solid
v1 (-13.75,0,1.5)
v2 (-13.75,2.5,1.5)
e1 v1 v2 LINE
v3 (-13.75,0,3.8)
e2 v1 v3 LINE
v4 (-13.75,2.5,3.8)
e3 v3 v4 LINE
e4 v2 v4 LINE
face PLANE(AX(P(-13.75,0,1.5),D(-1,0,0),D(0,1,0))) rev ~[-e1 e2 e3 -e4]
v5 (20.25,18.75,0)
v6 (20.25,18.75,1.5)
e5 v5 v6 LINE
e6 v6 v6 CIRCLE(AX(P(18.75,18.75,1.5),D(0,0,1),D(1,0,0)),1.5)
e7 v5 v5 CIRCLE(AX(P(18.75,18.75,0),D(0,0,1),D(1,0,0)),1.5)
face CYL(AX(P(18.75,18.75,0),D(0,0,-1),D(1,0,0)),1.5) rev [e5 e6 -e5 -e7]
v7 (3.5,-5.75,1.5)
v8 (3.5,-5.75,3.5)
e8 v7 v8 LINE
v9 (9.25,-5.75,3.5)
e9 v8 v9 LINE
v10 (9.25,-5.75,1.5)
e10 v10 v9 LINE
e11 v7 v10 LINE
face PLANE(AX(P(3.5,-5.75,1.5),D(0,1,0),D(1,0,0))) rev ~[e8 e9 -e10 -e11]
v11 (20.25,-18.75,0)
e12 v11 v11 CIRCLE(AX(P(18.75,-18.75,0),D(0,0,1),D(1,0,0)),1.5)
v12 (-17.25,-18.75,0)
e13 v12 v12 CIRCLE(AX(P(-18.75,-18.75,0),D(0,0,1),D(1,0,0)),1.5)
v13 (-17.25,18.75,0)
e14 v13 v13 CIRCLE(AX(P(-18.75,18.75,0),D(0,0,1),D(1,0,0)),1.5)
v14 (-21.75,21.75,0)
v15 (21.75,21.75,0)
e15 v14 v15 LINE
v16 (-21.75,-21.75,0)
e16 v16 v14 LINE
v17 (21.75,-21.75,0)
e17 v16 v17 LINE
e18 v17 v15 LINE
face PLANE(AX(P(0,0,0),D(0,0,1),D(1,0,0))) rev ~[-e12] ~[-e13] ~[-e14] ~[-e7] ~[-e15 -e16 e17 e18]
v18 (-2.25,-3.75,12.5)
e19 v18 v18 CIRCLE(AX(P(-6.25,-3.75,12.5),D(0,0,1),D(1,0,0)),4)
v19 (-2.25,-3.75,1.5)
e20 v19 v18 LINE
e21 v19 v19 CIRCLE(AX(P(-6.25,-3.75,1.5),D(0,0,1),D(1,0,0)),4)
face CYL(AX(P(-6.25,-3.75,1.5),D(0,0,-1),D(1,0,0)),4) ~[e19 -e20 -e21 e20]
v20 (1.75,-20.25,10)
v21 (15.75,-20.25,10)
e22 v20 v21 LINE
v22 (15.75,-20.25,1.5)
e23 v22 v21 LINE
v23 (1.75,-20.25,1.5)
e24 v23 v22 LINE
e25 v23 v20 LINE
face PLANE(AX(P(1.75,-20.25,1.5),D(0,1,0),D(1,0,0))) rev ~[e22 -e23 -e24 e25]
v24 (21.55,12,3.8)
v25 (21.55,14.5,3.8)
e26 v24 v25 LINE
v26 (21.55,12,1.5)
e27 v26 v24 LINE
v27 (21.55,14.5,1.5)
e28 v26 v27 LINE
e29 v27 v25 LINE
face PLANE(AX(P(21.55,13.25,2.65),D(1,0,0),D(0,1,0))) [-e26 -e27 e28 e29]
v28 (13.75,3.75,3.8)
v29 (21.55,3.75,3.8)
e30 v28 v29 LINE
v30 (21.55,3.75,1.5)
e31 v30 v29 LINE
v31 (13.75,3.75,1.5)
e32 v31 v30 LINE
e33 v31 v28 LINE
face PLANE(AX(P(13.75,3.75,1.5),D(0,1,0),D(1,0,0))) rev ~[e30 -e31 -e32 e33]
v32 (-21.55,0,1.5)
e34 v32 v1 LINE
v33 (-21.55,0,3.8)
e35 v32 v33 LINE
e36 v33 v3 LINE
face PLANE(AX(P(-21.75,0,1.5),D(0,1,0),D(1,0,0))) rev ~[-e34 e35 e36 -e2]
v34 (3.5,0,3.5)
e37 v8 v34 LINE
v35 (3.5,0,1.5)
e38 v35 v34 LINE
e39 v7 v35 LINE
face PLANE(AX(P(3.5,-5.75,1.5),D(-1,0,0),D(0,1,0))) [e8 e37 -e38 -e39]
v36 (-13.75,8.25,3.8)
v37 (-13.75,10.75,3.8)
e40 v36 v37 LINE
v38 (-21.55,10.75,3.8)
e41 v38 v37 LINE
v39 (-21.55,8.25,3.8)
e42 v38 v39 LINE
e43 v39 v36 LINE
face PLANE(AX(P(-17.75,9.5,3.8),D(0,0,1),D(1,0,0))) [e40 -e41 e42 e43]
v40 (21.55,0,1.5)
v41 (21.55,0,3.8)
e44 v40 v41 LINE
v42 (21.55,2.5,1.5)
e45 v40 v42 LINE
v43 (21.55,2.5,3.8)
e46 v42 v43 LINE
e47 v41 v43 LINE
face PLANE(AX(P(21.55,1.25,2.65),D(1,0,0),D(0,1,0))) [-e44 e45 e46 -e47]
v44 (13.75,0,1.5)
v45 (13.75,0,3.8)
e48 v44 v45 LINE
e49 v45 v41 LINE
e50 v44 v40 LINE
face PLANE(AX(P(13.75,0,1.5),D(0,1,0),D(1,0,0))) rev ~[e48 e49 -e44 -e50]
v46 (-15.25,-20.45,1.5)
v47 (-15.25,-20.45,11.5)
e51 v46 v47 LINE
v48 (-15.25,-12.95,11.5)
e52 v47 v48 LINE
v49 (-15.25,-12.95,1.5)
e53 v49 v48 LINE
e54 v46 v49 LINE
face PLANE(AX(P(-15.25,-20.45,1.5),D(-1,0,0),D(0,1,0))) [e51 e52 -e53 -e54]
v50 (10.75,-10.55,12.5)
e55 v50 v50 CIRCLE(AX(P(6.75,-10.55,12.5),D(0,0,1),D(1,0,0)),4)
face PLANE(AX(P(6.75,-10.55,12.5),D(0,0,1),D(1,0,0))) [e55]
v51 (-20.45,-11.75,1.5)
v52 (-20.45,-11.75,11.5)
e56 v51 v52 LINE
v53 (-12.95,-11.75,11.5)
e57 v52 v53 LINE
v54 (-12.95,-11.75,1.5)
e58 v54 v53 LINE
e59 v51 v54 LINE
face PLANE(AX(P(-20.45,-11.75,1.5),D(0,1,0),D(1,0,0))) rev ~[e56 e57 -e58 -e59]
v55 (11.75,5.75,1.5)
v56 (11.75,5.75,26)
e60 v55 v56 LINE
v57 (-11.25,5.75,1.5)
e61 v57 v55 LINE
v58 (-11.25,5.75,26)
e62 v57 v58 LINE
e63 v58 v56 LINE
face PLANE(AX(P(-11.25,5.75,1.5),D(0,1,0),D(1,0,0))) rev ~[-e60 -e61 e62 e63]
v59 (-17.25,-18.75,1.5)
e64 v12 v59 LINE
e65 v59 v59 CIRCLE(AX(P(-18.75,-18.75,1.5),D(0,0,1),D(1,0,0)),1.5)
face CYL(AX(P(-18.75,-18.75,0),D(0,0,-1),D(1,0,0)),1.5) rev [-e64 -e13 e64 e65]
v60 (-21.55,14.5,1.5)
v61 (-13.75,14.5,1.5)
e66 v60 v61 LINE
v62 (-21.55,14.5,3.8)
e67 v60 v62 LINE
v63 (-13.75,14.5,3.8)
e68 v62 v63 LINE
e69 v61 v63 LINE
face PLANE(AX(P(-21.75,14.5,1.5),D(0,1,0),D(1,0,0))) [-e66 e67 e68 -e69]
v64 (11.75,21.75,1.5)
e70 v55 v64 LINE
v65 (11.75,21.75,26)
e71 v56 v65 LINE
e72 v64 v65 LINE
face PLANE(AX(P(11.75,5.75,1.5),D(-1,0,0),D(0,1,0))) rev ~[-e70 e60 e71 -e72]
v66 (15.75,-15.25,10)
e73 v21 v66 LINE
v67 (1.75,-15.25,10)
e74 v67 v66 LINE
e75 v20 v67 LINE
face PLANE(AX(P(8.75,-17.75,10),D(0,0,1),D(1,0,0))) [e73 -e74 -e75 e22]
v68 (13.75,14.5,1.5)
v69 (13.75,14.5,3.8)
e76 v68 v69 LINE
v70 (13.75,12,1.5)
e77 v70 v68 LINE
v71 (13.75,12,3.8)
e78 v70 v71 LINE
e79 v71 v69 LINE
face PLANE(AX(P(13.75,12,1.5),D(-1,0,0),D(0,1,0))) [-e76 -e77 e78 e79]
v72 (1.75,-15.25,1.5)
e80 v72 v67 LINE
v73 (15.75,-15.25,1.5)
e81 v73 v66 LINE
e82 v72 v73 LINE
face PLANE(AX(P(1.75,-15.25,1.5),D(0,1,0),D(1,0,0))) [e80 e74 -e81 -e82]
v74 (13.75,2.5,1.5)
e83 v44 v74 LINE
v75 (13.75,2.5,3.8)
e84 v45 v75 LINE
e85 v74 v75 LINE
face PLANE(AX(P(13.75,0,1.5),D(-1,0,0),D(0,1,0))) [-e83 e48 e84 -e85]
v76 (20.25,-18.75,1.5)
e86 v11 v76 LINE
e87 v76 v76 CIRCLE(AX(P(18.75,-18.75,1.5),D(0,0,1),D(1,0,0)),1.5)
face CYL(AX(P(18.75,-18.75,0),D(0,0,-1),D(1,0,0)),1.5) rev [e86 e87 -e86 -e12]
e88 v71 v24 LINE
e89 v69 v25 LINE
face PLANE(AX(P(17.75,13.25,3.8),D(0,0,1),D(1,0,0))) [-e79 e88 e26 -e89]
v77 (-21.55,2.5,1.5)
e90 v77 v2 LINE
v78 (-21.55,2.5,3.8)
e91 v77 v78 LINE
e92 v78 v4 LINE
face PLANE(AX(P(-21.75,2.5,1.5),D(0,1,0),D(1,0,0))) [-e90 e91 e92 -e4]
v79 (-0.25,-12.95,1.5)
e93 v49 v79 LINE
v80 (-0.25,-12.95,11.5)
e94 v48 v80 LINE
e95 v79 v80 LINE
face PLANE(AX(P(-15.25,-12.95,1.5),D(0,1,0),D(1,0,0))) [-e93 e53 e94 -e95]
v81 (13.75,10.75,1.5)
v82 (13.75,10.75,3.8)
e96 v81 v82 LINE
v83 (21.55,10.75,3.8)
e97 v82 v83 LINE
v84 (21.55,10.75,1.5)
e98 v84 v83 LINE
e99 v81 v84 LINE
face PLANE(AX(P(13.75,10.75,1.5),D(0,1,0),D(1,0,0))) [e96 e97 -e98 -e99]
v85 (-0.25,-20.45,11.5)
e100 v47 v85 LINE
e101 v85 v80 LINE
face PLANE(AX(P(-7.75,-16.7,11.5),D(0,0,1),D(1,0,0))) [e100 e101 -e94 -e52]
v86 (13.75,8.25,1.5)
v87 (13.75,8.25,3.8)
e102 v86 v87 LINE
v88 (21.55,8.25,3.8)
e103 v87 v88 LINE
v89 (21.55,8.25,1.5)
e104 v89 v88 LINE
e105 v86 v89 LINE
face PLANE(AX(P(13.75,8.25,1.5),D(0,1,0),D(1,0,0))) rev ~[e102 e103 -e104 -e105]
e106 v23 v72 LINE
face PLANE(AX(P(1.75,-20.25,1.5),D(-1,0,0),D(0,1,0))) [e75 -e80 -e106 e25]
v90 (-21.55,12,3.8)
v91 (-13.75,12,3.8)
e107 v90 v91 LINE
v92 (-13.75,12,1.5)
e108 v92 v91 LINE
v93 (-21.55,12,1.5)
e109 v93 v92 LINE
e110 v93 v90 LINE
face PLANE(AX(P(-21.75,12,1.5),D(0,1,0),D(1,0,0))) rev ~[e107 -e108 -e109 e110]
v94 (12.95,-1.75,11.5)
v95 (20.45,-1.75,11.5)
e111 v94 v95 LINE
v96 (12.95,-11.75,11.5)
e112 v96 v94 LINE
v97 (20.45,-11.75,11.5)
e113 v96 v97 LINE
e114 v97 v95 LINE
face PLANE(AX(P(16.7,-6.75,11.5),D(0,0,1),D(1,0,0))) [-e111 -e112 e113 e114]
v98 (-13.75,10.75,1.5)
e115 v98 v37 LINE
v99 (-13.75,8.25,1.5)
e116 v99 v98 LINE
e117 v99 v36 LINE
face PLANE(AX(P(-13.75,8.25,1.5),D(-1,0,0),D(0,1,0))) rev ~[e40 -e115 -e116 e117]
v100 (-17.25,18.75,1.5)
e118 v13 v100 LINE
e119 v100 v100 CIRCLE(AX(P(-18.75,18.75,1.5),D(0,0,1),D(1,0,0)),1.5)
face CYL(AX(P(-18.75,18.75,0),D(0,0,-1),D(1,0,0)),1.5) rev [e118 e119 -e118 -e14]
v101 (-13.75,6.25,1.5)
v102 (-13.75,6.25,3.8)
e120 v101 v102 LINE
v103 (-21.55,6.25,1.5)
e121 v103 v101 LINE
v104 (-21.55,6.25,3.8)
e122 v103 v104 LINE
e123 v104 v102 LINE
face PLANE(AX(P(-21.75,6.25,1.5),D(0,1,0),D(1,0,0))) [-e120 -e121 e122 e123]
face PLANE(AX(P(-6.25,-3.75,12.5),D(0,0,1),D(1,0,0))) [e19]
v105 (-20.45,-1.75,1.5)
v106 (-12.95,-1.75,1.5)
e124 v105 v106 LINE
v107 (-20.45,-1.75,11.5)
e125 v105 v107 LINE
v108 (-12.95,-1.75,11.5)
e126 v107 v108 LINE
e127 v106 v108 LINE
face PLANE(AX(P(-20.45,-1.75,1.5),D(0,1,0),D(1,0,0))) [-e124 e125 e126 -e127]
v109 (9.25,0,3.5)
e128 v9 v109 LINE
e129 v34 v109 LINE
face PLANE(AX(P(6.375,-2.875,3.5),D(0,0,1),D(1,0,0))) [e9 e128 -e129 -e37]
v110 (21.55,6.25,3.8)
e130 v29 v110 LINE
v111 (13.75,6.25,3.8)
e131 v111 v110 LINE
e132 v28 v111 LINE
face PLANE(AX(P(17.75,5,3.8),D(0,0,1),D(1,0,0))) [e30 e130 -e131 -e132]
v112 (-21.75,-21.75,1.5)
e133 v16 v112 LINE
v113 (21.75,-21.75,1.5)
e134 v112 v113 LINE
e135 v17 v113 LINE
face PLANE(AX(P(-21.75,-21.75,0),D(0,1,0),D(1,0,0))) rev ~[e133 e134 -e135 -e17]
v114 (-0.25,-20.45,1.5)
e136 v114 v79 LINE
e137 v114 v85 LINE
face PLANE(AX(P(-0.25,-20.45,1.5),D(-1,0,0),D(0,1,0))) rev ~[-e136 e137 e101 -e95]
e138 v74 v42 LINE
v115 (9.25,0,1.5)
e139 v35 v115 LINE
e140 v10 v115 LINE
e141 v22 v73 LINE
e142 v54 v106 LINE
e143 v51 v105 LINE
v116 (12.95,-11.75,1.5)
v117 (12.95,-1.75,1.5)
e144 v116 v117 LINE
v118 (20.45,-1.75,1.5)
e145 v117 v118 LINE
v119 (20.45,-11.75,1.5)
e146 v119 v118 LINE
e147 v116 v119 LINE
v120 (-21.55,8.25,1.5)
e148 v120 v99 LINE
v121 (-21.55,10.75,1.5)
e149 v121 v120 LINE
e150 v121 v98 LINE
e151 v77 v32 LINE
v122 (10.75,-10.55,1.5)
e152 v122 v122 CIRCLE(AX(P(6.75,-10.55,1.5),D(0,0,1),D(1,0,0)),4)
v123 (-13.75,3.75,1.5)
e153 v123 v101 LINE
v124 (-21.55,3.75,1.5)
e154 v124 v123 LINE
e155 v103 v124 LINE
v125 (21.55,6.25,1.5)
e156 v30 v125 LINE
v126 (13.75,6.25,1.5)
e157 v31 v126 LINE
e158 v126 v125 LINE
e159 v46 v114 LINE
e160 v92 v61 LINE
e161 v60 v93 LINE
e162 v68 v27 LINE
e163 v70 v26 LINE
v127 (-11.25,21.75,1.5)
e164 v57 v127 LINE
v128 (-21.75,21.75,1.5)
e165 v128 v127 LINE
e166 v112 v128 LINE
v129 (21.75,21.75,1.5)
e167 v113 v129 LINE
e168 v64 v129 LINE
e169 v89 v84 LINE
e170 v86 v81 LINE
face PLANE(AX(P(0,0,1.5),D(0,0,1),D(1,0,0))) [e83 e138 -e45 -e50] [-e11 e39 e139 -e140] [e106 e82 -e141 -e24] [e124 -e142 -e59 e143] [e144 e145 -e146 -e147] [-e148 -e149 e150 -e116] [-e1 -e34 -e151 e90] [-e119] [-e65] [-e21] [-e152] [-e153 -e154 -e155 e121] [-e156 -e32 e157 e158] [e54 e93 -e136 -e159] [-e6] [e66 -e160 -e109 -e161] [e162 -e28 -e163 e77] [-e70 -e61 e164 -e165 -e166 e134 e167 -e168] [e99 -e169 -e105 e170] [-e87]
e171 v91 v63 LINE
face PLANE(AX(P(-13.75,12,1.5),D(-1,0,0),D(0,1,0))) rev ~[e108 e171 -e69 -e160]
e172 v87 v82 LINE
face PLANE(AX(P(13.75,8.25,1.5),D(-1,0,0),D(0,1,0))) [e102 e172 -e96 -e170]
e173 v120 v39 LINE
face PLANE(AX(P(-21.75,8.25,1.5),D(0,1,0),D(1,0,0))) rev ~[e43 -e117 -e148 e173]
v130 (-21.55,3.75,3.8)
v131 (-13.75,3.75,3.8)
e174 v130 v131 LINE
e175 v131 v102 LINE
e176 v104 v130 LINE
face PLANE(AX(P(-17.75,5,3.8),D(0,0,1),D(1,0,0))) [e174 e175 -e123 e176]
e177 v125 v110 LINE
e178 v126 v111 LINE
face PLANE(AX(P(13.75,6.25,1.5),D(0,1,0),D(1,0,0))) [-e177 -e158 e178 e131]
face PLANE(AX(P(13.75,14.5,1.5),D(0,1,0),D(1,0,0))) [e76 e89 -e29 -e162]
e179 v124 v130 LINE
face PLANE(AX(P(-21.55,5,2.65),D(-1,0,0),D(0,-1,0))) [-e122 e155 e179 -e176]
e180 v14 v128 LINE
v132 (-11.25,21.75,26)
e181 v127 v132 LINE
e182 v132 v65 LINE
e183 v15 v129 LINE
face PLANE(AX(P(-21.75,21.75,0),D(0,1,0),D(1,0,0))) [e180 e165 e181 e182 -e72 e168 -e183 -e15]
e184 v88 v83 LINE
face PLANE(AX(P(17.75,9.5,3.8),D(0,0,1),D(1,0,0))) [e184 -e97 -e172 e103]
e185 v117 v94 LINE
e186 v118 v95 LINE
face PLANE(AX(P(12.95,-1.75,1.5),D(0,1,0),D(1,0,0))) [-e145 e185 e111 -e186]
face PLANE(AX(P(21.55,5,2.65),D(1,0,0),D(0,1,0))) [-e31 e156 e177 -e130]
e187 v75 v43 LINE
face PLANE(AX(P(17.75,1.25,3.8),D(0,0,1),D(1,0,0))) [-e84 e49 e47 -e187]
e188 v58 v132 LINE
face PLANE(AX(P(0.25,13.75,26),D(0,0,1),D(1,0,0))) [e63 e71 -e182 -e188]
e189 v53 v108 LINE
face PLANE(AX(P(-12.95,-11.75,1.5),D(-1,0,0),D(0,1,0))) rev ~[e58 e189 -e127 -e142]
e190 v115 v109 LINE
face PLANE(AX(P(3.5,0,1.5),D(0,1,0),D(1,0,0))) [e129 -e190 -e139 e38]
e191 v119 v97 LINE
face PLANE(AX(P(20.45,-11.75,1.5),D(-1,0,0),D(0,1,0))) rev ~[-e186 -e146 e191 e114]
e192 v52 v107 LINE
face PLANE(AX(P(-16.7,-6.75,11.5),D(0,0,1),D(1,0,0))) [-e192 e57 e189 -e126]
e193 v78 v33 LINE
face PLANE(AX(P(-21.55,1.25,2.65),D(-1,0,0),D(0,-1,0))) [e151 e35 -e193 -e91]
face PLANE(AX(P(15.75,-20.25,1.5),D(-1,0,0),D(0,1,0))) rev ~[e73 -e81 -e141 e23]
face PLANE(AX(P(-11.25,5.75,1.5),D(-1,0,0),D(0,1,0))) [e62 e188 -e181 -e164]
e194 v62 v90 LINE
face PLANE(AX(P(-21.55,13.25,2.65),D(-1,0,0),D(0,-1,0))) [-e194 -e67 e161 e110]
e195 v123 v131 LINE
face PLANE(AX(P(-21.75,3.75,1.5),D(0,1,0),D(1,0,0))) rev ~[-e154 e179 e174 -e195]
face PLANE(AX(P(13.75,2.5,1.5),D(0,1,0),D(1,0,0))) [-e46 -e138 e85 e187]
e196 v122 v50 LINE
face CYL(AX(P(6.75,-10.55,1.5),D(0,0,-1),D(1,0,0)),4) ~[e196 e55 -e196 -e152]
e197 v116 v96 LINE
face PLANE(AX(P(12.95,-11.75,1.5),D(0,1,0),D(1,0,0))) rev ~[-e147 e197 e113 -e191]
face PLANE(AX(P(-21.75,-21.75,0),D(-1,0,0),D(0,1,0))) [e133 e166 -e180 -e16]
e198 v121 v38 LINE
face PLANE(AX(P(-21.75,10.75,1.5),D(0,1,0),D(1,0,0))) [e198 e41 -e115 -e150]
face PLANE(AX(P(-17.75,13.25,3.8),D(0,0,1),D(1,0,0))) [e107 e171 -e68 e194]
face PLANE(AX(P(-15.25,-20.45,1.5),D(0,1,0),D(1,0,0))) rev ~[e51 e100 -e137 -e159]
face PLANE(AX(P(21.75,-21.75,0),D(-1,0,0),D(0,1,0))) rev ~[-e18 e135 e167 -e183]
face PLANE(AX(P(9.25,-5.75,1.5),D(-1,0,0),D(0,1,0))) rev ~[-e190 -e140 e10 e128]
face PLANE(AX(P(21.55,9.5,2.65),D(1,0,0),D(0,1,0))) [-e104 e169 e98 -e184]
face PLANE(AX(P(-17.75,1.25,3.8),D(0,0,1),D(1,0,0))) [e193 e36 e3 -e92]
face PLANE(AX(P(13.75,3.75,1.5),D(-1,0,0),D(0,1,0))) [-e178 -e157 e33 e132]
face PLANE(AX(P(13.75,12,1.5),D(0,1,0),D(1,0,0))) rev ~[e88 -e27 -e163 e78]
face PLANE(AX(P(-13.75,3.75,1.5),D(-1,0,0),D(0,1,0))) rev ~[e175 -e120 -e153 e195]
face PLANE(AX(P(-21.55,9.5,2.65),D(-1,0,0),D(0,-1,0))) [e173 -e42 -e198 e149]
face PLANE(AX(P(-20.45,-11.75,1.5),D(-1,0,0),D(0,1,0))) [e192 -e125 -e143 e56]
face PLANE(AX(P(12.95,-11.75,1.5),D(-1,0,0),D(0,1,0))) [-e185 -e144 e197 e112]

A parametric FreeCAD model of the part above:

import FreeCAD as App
import Part
import Sketcher

V = App.Vector

doc = App.newDocument("Part")
body = doc.addObject("PartDesign::Body", "Body")

# Sketch on XY plane
sketch1 = doc.addObject("Sketcher::SketchObject", "Sketch")
body.addObject(sketch1)
sketch1.AttachmentSupport = (doc.XY_Plane, [""])
sketch1.MapMode = "FlatFace"
sketch1.addGeometry([
    Part.LineSegment(V(-21.8, 21.8, 0), V(-21.8, -21.8, 0)),  # 0
    Part.LineSegment(V(-21.8, -21.8, 0), V(21.8, -21.8, 0)),  # 1
    Part.LineSegment(V(21.8, -21.8, 0), V(21.8, 21.8, 0)),  # 2
    Part.LineSegment(V(21.8, 21.8, 0), V(-21.8, 21.8, 0)),  # 3
    Part.Circle(V(-18.8, -18.8, 0), V(0, 0, 1), 1.5),  # 4
    Part.Circle(V(18.8, -18.8, 0), V(0, 0, 1), 1.5),  # 5
    Part.Circle(V(-18.8, 18.8, 0), V(0, 0, 1), 1.5),  # 6
    Part.Circle(V(18.8, 18.8, 0), V(0, 0, 1), 1.5),  # 7
], False)
sketch1.addConstraint([
    Sketcher.Constraint("Coincident", 0, 2, 1, 1),
    Sketcher.Constraint("Coincident", 1, 2, 2, 1),
    Sketcher.Constraint("Coincident", 2, 2, 3, 1),
    Sketcher.Constraint("Coincident", 3, 2, 0, 1),
    Sketcher.Constraint("Vertical", 0),
    Sketcher.Constraint("Horizontal", 1),
    Sketcher.Constraint("Vertical", 2),
    Sketcher.Constraint("Horizontal", 3),
    Sketcher.Constraint("Equal", 4, 5),
    Sketcher.Constraint("Equal", 5, 6),
    Sketcher.Constraint("Equal", 6, 7),
    Sketcher.Constraint("Symmetric", 5, 3, 6, 3, -1, 1),
    Sketcher.Constraint("Symmetric", 4, 3, 7, 3, -1, 1),
    Sketcher.Constraint("Symmetric", 0, 2, 2, 2, -1, 1),
    Sketcher.Constraint("Symmetric", 4, 3, 5, 3, -2),
    Sketcher.Constraint("Equal", 3, 0),
    Sketcher.Constraint("Diameter", 4, 3.0),
    Sketcher.Constraint("DistanceX", 1, 1, 1, 2, 43.5),
    Sketcher.Constraint("DistanceX", 0, 2, 4, 3, 3.0),
    Sketcher.Constraint("DistanceY", 0, 2, 4, 3, 3.0),
])
pad1 = doc.addObject("PartDesign::Pad", "Pad")
body.addObject(pad1)
pad1.Profile = sketch1
pad1.Length = 1.5

# Sketch on XY plane
sketch2 = doc.addObject("Sketcher::SketchObject", "Sketch001")
body.addObject(sketch2)
sketch2.AttachmentSupport = (doc.XY_Plane, [""])
sketch2.MapMode = "FlatFace"
sketch2.AttachmentOffset = App.Placement(V(0, 0, 1.5), App.Rotation())
sketch2.addGeometry([
    Part.LineSegment(V(-11, 22, 0), V(-11, 6, 0)),
    Part.LineSegment(V(-11, 6, 0), V(12, 6, 0)),
    Part.LineSegment(V(12, 6, 0), V(12, 22, 0)),
    Part.LineSegment(V(12, 22, 0), V(-11, 22, 0)),
], False)
sketch2.addConstraint([
    Sketcher.Constraint("Coincident", 0, 2, 1, 1),
    Sketcher.Constraint("Coincident", 1, 2, 2, 1),
    Sketcher.Constraint("Coincident", 2, 2, 3, 1),
    Sketcher.Constraint("Coincident", 3, 2, 0, 1),
    Sketcher.Constraint("Vertical", 0),
    Sketcher.Constraint("Horizontal", 1),
    Sketcher.Constraint("Vertical", 2),
    Sketcher.Constraint("Horizontal", 3),
    Sketcher.Constraint("DistanceX", 1, 1, 1, 2, 23.0),
    Sketcher.Constraint("DistanceY", 0, 2, 0, 1, 16.0),
    Sketcher.Constraint("DistanceX", 0, 2, -1, 1, 11.25),
    Sketcher.Constraint("DistanceY", -1, 1, 0, 2, 5.75),
])
pad2 = doc.addObject("PartDesign::Pad", "Pad001")
body.addObject(pad2)
pad2.Profile = sketch2
pad2.Length = 24.5

# Sketch on XY plane
sketch3 = doc.addObject("Sketcher::SketchObject", "Sketch002")
body.addObject(sketch3)
sketch3.AttachmentSupport = (doc.XY_Plane, [""])
sketch3.MapMode = "FlatFace"
sketch3.AttachmentOffset = App.Placement(V(0, 0, 1.5), App.Rotation())
sketch3.addGeometry([
    Part.LineSegment(V(-21.8, 14.5, 0), V(-21.8, 12, 0)),  # 0
    Part.LineSegment(V(-21.8, 12, 0), V(-13.8, 12, 0)),  # 1
    Part.LineSegment(V(-13.8, 12, 0), V(-13.8, 14.5, 0)),  # 2
    Part.LineSegment(V(-13.8, 14.5, 0), V(-21.8, 14.5, 0)),  # 3
    Part.LineSegment(V(-21.8, 10.8, 0), V(-21.8, 8.2, 0)),  # 4
    Part.LineSegment(V(-21.8, 8.2, 0), V(-13.8, 8.2, 0)),  # 5
    Part.LineSegment(V(-13.8, 8.2, 0), V(-13.8, 10.8, 0)),  # 6
    Part.LineSegment(V(-13.8, 10.8, 0), V(-21.8, 10.8, 0)),  # 7
    Part.LineSegment(V(-21.8, 6.2, 0), V(-21.8, 3.8, 0)),  # 8
    Part.LineSegment(V(-21.8, 3.8, 0), V(-13.8, 3.8, 0)),  # 9
    Part.LineSegment(V(-13.8, 3.8, 0), V(-13.8, 6.2, 0)),  # 10
    Part.LineSegment(V(-13.8, 6.2, 0), V(-21.8, 6.2, 0)),  # 11
    Part.LineSegment(V(13.8, 14.5, 0), V(13.8, 12, 0)),  # 12
    Part.LineSegment(V(13.8, 12, 0), V(21.8, 12, 0)),  # 13
    Part.LineSegment(V(21.8, 12, 0), V(21.8, 14.5, 0)),  # 14
    Part.LineSegment(V(21.8, 14.5, 0), V(13.8, 14.5, 0)),  # 15
    Part.LineSegment(V(13.8, 10.8, 0), V(13.8, 8.2, 0)),  # 16
    Part.LineSegment(V(13.8, 8.2, 0), V(21.8, 8.2, 0)),  # 17
    Part.LineSegment(V(21.8, 8.2, 0), V(21.8, 10.8, 0)),  # 18
    Part.LineSegment(V(21.8, 10.8, 0), V(13.8, 10.8, 0)),  # 19
    Part.LineSegment(V(13.8, 6.2, 0), V(13.8, 3.8, 0)),  # 20
    Part.LineSegment(V(13.8, 3.8, 0), V(21.8, 3.8, 0)),  # 21
    Part.LineSegment(V(21.8, 3.8, 0), V(21.8, 6.2, 0)),  # 22
    Part.LineSegment(V(21.8, 6.2, 0), V(13.8, 6.2, 0)),  # 23
    Part.LineSegment(V(13.8, 2.5, 0), V(13.8, 0, 0)),  # 24
    Part.LineSegment(V(13.8, 0, 0), V(21.8, 0, 0)),  # 25
    Part.LineSegment(V(21.8, 0, 0), V(21.8, 2.5, 0)),  # 26
    Part.LineSegment(V(21.8, 2.5, 0), V(13.8, 2.5, 0)),  # 27
    Part.LineSegment(V(-21.8, 2.5, 0), V(-21.8, 0, 0)),  # 28
    Part.LineSegment(V(-21.8, 0, 0), V(-13.8, 0, 0)),  # 29
    Part.LineSegment(V(-13.8, 0, 0), V(-13.8, 2.5, 0)),  # 30
    Part.LineSegment(V(-13.8, 2.5, 0), V(-21.8, 2.5, 0)),  # 31
], False)
sketch3.addConstraint([
    Sketcher.Constraint("Coincident", 0, 2, 1, 1),
    Sketcher.Constraint("Coincident", 1, 2, 2, 1),
    Sketcher.Constraint("Coincident", 2, 2, 3, 1),
    Sketcher.Constraint("Coincident", 3, 2, 0, 1),
    Sketcher.Constraint("Coincident", 4, 2, 5, 1),
    Sketcher.Constraint("Coincident", 5, 2, 6, 1),
    Sketcher.Constraint("Coincident", 6, 2, 7, 1),
    Sketcher.Constraint("Coincident", 7, 2, 4, 1),
    Sketcher.Constraint("Coincident", 8, 2, 9, 1),
    Sketcher.Constraint("Coincident", 9, 2, 10, 1),
    Sketcher.Constraint("Coincident", 10, 2, 11, 1),
    Sketcher.Constraint("Coincident", 11, 2, 8, 1),
    Sketcher.Constraint("Coincident", 12, 2, 13, 1),
    Sketcher.Constraint("Coincident", 13, 2, 14, 1),
    Sketcher.Constraint("Coincident", 14, 2, 15, 1),
    Sketcher.Constraint("Coincident", 15, 2, 12, 1),
    Sketcher.Constraint("Coincident", 16, 2, 17, 1),
    Sketcher.Constraint("Coincident", 17, 2, 18, 1),
    Sketcher.Constraint("Coincident", 18, 2, 19, 1),
    Sketcher.Constraint("Coincident", 19, 2, 16, 1),
    Sketcher.Constraint("Coincident", 20, 2, 21, 1),
    Sketcher.Constraint("Coincident", 21, 2, 22, 1),
    Sketcher.Constraint("Coincident", 22, 2, 23, 1),
    Sketcher.Constraint("Coincident", 23, 2, 20, 1),
    Sketcher.Constraint("Coincident", 24, 2, 25, 1),
    Sketcher.Constraint("Coincident", 25, 2, 26, 1),
    Sketcher.Constraint("Coincident", 26, 2, 27, 1),
    Sketcher.Constraint("Coincident", 27, 2, 24, 1),
    Sketcher.Constraint("Coincident", 28, 2, 29, 1),
    Sketcher.Constraint("Coincident", 29, 2, 30, 1),
    Sketcher.Constraint("Coincident", 30, 2, 31, 1),
    Sketcher.Constraint("Coincident", 31, 2, 28, 1),
    Sketcher.Constraint("Vertical", 0),
    Sketcher.Constraint("Horizontal", 1),
    Sketcher.Constraint("Vertical", 2),
    Sketcher.Constraint("Horizontal", 3),
    Sketcher.Constraint("Vertical", 4),
    Sketcher.Constraint("Horizontal", 5),
    Sketcher.Constraint("Vertical", 6),
    Sketcher.Constraint("Horizontal", 7),
    Sketcher.Constraint("Vertical", 8),
    Sketcher.Constraint("Horizontal", 9),
    Sketcher.Constraint("Vertical", 10),
    Sketcher.Constraint("Horizontal", 11),
    Sketcher.Constraint("Vertical", 12),
    Sketcher.Constraint("Horizontal", 13),
    Sketcher.Constraint("Vertical", 14),
    Sketcher.Constraint("Horizontal", 15),
    Sketcher.Constraint("Vertical", 16),
    Sketcher.Constraint("Horizontal", 17),
    Sketcher.Constraint("Vertical", 18),
    Sketcher.Constraint("Horizontal", 19),
    Sketcher.Constraint("Vertical", 20),
    Sketcher.Constraint("Horizontal", 21),
    Sketcher.Constraint("Vertical", 22),
    Sketcher.Constraint("Horizontal", 23),
    Sketcher.Constraint("Vertical", 24),
    Sketcher.Constraint("Horizontal", 25),
    Sketcher.Constraint("Vertical", 26),
    Sketcher.Constraint("Horizontal", 27),
    Sketcher.Constraint("Vertical", 28),
    Sketcher.Constraint("Horizontal", 29),
    Sketcher.Constraint("Vertical", 30),
    Sketcher.Constraint("Horizontal", 31),
    Sketcher.Constraint("Symmetric", 25, 2, 28, 2, -1, 1),
    Sketcher.Constraint("Symmetric", 1, 2, 12, 2, -2),
    Sketcher.Constraint("Symmetric", 3, 2, 14, 2, -2),
    Sketcher.Constraint("Symmetric", 5, 2, 16, 2, -2),
    Sketcher.Constraint("Symmetric", 7, 2, 18, 2, -2),
    Sketcher.Constraint("Symmetric", 9, 2, 20, 2, -2),
    Sketcher.Constraint("Symmetric", 11, 2, 22, 2, -2),
    Sketcher.Constraint("Symmetric", 24, 2, 29, 2, -2),
    Sketcher.Constraint("Horizontal", 27, 2, 30, 2),
    Sketcher.Constraint("Vertical", 3, 2, 4, 2),
    Sketcher.Constraint("Vertical", 2, 2, 5, 2),
    Sketcher.Constraint("Vertical", 7, 2, 8, 2),
    Sketcher.Constraint("Vertical", 6, 2, 9, 2),
    Sketcher.Constraint("Vertical", 23, 2, 24, 2),
    Sketcher.Constraint("Vertical", 22, 2, 25, 2),
    Sketcher.Constraint("Equal", 2, 4),
    Sketcher.Constraint("Equal", 6, 8),
    Sketcher.Constraint("Equal", 22, 24),
    Sketcher.Constraint("DistanceX", 1, 1, 1, 2, 8.0),
    Sketcher.Constraint("DistanceY", 0, 2, 0, 1, 2.5),
    Sketcher.Constraint("DistanceY", -1, 1, 0, 2, 12.0),
    Sketcher.Constraint("DistanceY", 8, 2, 7, 2, 7.0),
    Sketcher.Constraint("DistanceX", 1, 2, 12, 2, 27.5),
    Sketcher.Constraint("DistanceY", -1, 1, 4, 2, 8.25),
])
pad3 = doc.addObject("PartDesign::Pad", "Pad002")
body.addObject(pad3)
pad3.Profile = sketch3
pad3.Length = 2.3

# Sketch on XY plane
sketch4 = doc.addObject("Sketcher::SketchObject", "Sketch003")
body.addObject(sketch4)
sketch4.AttachmentSupport = (doc.XY_Plane, [""])
sketch4.MapMode = "FlatFace"
sketch4.AttachmentOffset = App.Placement(V(0, 0, 1.5), App.Rotation())
sketch4.addGeometry([
    Part.LineSegment(V(4, 0, 0), V(4, -6, 0)),
    Part.LineSegment(V(4, -6, 0), V(9, -6, 0)),
    Part.LineSegment(V(9, -6, 0), V(9, 0, 0)),
    Part.LineSegment(V(9, 0, 0), V(4, 0, 0)),
], False)
sketch4.addConstraint([
    Sketcher.Constraint("Coincident", 0, 2, 1, 1),
    Sketcher.Constraint("Coincident", 1, 2, 2, 1),
    Sketcher.Constraint("Coincident", 2, 2, 3, 1),
    Sketcher.Constraint("Coincident", 3, 2, 0, 1),
    Sketcher.Constraint("Vertical", 0),
    Sketcher.Constraint("Horizontal", 1),
    Sketcher.Constraint("Vertical", 2),
    Sketcher.Constraint("Horizontal", 3),
    Sketcher.Constraint("PointOnObject", 2, 2, -1),
    Sketcher.Constraint("Equal", 3, 0),
    Sketcher.Constraint("DistanceX", 1, 1, 1, 2, 5.75),
    Sketcher.Constraint("DistanceX", -1, 1, 0, 2, 3.5),
])
pad4 = doc.addObject("PartDesign::Pad", "Pad003")
body.addObject(pad4)
pad4.Profile = sketch4
pad4.Length = 2

# Sketch on XY plane
sketch5 = doc.addObject("Sketcher::SketchObject", "Sketch004")
body.addObject(sketch5)
sketch5.AttachmentSupport = (doc.XY_Plane, [""])
sketch5.MapMode = "FlatFace"
sketch5.AttachmentOffset = App.Placement(V(0, 0, 1.5), App.Rotation())
sketch5.addGeometry([
    Part.Circle(V(-6.2, -3.8, 0), V(0, 0, 1), 4),
    Part.Circle(V(6.8, -10.6, 0), V(0, 0, 1), 4),
], False)
sketch5.addConstraint([
    Sketcher.Constraint("Equal", 0, 1),
    Sketcher.Constraint("Diameter", 0, 8.0),
    Sketcher.Constraint("DistanceX", 0, 3, 1, 3, 13.0),
    Sketcher.Constraint("DistanceY", 1, 3, 0, 3, 6.8),
    Sketcher.Constraint("DistanceX", 0, 3, -1, 1, 6.25),
    Sketcher.Constraint("DistanceY", 0, 3, -1, 1, 3.75),
])
pad5 = doc.addObject("PartDesign::Pad", "Pad004")
body.addObject(pad5)
pad5.Profile = sketch5
pad5.Length = 11

# Sketch on XY plane
sketch6 = doc.addObject("Sketcher::SketchObject", "Sketch005")
body.addObject(sketch6)
sketch6.AttachmentSupport = (doc.XY_Plane, [""])
sketch6.MapMode = "FlatFace"
sketch6.AttachmentOffset = App.Placement(V(0, 0, 1.5), App.Rotation())
sketch6.addGeometry([
    Part.LineSegment(V(13, -2, 0), V(13, -12, 0)),  # 0
    Part.LineSegment(V(13, -12, 0), V(20, -12, 0)),  # 1
    Part.LineSegment(V(20, -12, 0), V(20, -2, 0)),  # 2
    Part.LineSegment(V(20, -2, 0), V(13, -2, 0)),  # 3
    Part.LineSegment(V(-20, -2, 0), V(-20, -12, 0)),  # 4
    Part.LineSegment(V(-20, -12, 0), V(-13, -12, 0)),  # 5
    Part.LineSegment(V(-13, -12, 0), V(-13, -2, 0)),  # 6
    Part.LineSegment(V(-13, -2, 0), V(-20, -2, 0)),  # 7
    Part.LineSegment(V(-15, -13, 0), V(-15, -20, 0)),  # 8
    Part.LineSegment(V(-15, -20, 0), V(0, -20, 0)),  # 9
    Part.LineSegment(V(0, -20, 0), V(0, -13, 0)),  # 10
    Part.LineSegment(V(0, -13, 0), V(-15, -13, 0)),  # 11
], False)
sketch6.addConstraint([
    Sketcher.Constraint("Coincident", 0, 2, 1, 1),
    Sketcher.Constraint("Coincident", 1, 2, 2, 1),
    Sketcher.Constraint("Coincident", 2, 2, 3, 1),
    Sketcher.Constraint("Coincident", 3, 2, 0, 1),
    Sketcher.Constraint("Coincident", 4, 2, 5, 1),
    Sketcher.Constraint("Coincident", 5, 2, 6, 1),
    Sketcher.Constraint("Coincident", 6, 2, 7, 1),
    Sketcher.Constraint("Coincident", 7, 2, 4, 1),
    Sketcher.Constraint("Coincident", 8, 2, 9, 1),
    Sketcher.Constraint("Coincident", 9, 2, 10, 1),
    Sketcher.Constraint("Coincident", 10, 2, 11, 1),
    Sketcher.Constraint("Coincident", 11, 2, 8, 1),
    Sketcher.Constraint("Vertical", 0),
    Sketcher.Constraint("Horizontal", 1),
    Sketcher.Constraint("Vertical", 2),
    Sketcher.Constraint("Horizontal", 3),
    Sketcher.Constraint("Vertical", 4),
    Sketcher.Constraint("Horizontal", 5),
    Sketcher.Constraint("Vertical", 6),
    Sketcher.Constraint("Horizontal", 7),
    Sketcher.Constraint("Vertical", 8),
    Sketcher.Constraint("Horizontal", 9),
    Sketcher.Constraint("Vertical", 10),
    Sketcher.Constraint("Horizontal", 11),
    Sketcher.Constraint("Symmetric", 1, 2, 4, 2, -2),
    Sketcher.Constraint("Symmetric", 3, 2, 6, 2, -2),
    Sketcher.Constraint("Equal", 7, 8),
    Sketcher.Constraint("DistanceX", 9, 1, 9, 2, 15.0),
    Sketcher.Constraint("DistanceY", 0, 2, 0, 1, 10.0),
    Sketcher.Constraint("DistanceX", 1, 1, 1, 2, 7.5),
    Sketcher.Constraint("DistanceX", 4, 2, 0, 2, 33.4),
    Sketcher.Constraint("DistanceX", 8, 2, 5, 2, 2.3),
    Sketcher.Constraint("DistanceY", 8, 2, 5, 2, 8.7),
    Sketcher.Constraint("DistanceY", 0, 2, -1, 1, 11.75),
])
pad6 = doc.addObject("PartDesign::Pad", "Pad005")
body.addObject(pad6)
pad6.Profile = sketch6
pad6.Length = 10

# Sketch on XY plane
sketch7 = doc.addObject("Sketcher::SketchObject", "Sketch006")
body.addObject(sketch7)
sketch7.AttachmentSupport = (doc.XY_Plane, [""])
sketch7.MapMode = "FlatFace"
sketch7.AttachmentOffset = App.Placement(V(0, 0, 1.5), App.Rotation())
sketch7.addGeometry([
    Part.LineSegment(V(2, -15, 0), V(2, -20, 0)),
    Part.LineSegment(V(2, -20, 0), V(16, -20, 0)),
    Part.LineSegment(V(16, -20, 0), V(16, -15, 0)),
    Part.LineSegment(V(16, -15, 0), V(2, -15, 0)),
], False)
sketch7.addConstraint([
    Sketcher.Constraint("Coincident", 0, 2, 1, 1),
    Sketcher.Constraint("Coincident", 1, 2, 2, 1),
    Sketcher.Constraint("Coincident", 2, 2, 3, 1),
    Sketcher.Constraint("Coincident", 3, 2, 0, 1),
    Sketcher.Constraint("Vertical", 0),
    Sketcher.Constraint("Horizontal", 1),
    Sketcher.Constraint("Vertical", 2),
    Sketcher.Constraint("Horizontal", 3),
    Sketcher.Constraint("DistanceX", 1, 1, 1, 2, 14.0),
    Sketcher.Constraint("DistanceY", 0, 2, 0, 1, 5.0),
    Sketcher.Constraint("DistanceX", -1, 1, 0, 2, 1.75),
    Sketcher.Constraint("DistanceY", 0, 2, -1, 1, 20.25),
])
pad7 = doc.addObject("PartDesign::Pad", "Pad006")
body.addObject(pad7)
pad7.Profile = sketch7
pad7.Length = 8.5

# Sketch on YZ plane
sketch8 = doc.addObject("Sketcher::SketchObject", "Sketch007")
body.addObject(sketch8)
sketch8.AttachmentSupport = (doc.YZ_Plane, [""])
sketch8.MapMode = "FlatFace"
sketch8.AttachmentOffset = App.Placement(V(0, 0, 21.75), App.Rotation())
sketch8.addGeometry([
    Part.LineSegment(V(0, 3.8, 0), V(0, 1.5, 0)),  # 0
    Part.LineSegment(V(0, 1.5, 0), V(2.5, 1.5, 0)),  # 1
    Part.LineSegment(V(2.5, 1.5, 0), V(2.5, 3.8, 0)),  # 2
    Part.LineSegment(V(2.5, 3.8, 0), V(0, 3.8, 0)),  # 3
    Part.LineSegment(V(3.8, 3.8, 0), V(3.8, 1.5, 0)),  # 4
    Part.LineSegment(V(3.8, 1.5, 0), V(6.2, 1.5, 0)),  # 5
    Part.LineSegment(V(6.2, 1.5, 0), V(6.2, 3.8, 0)),  # 6
    Part.LineSegment(V(6.2, 3.8, 0), V(3.8, 3.8, 0)),  # 7
    Part.LineSegment(V(8.2, 3.8, 0), V(8.2, 1.5, 0)),  # 8
    Part.LineSegment(V(8.2, 1.5, 0), V(10.8, 1.5, 0)),  # 9
    Part.LineSegment(V(10.8, 1.5, 0), V(10.8, 3.8, 0)),  # 10
    Part.LineSegment(V(10.8, 3.8, 0), V(8.2, 3.8, 0)),  # 11
    Part.LineSegment(V(12, 3.8, 0), V(12, 1.5, 0)),  # 12
    Part.LineSegment(V(12, 1.5, 0), V(14.5, 1.5, 0)),  # 13
    Part.LineSegment(V(14.5, 1.5, 0), V(14.5, 3.8, 0)),  # 14
    Part.LineSegment(V(14.5, 3.8, 0), V(12, 3.8, 0)),  # 15
], False)
sketch8.addConstraint([
    Sketcher.Constraint("Coincident", 0, 2, 1, 1),
    Sketcher.Constraint("Coincident", 1, 2, 2, 1),
    Sketcher.Constraint("Coincident", 2, 2, 3, 1),
    Sketcher.Constraint("Coincident", 3, 2, 0, 1),
    Sketcher.Constraint("Coincident", 4, 2, 5, 1),
    Sketcher.Constraint("Coincident", 5, 2, 6, 1),
    Sketcher.Constraint("Coincident", 6, 2, 7, 1),
    Sketcher.Constraint("Coincident", 7, 2, 4, 1),
    Sketcher.Constraint("Coincident", 8, 2, 9, 1),
    Sketcher.Constraint("Coincident", 9, 2, 10, 1),
    Sketcher.Constraint("Coincident", 10, 2, 11, 1),
    Sketcher.Constraint("Coincident", 11, 2, 8, 1),
    Sketcher.Constraint("Coincident", 12, 2, 13, 1),
    Sketcher.Constraint("Coincident", 13, 2, 14, 1),
    Sketcher.Constraint("Coincident", 14, 2, 15, 1),
    Sketcher.Constraint("Coincident", 15, 2, 12, 1),
    Sketcher.Constraint("Vertical", 0),
    Sketcher.Constraint("Horizontal", 1),
    Sketcher.Constraint("Vertical", 2),
    Sketcher.Constraint("Horizontal", 3),
    Sketcher.Constraint("Vertical", 4),
    Sketcher.Constraint("Horizontal", 5),
    Sketcher.Constraint("Vertical", 6),
    Sketcher.Constraint("Horizontal", 7),
    Sketcher.Constraint("Vertical", 8),
    Sketcher.Constraint("Horizontal", 9),
    Sketcher.Constraint("Vertical", 10),
    Sketcher.Constraint("Horizontal", 11),
    Sketcher.Constraint("Vertical", 12),
    Sketcher.Constraint("Horizontal", 13),
    Sketcher.Constraint("Vertical", 14),
    Sketcher.Constraint("Horizontal", 15),
    Sketcher.Constraint("PointOnObject", 0, 2, -2),
    Sketcher.Constraint("Horizontal", 1, 2, 4, 2),
    Sketcher.Constraint("Horizontal", 3, 2, 6, 2),
    Sketcher.Constraint("Horizontal", 5, 2, 8, 2),
    Sketcher.Constraint("Horizontal", 7, 2, 10, 2),
    Sketcher.Constraint("Horizontal", 9, 2, 12, 2),
    Sketcher.Constraint("Horizontal", 11, 2, 14, 2),
    Sketcher.Constraint("Equal", 3, 5),
    Sketcher.Constraint("Equal", 7, 9),
    Sketcher.Constraint("Equal", 11, 13),
    Sketcher.Constraint("DistanceX", 1, 1, 1, 2, 2.5),
    Sketcher.Constraint("DistanceY", 0, 2, 0, 1, 2.3),
    Sketcher.Constraint("DistanceX", -1, 1, 12, 2, 12.0),
    Sketcher.Constraint("DistanceX", 5, 2, 8, 2, 2.0),
    Sketcher.Constraint("DistanceY", -1, 1, 0, 2, 1.5),
    Sketcher.Constraint("DistanceX", -1, 1, 4, 2, 3.75),
])
pocket1 = doc.addObject("PartDesign::Pocket", "Pocket")
body.addObject(pocket1)
pocket1.Profile = sketch8
pocket1.Length = 0.2

# Sketch on YZ plane
sketch9 = doc.addObject("Sketcher::SketchObject", "Sketch008")
body.addObject(sketch9)
sketch9.AttachmentSupport = (doc.YZ_Plane, [""])
sketch9.MapMode = "FlatFace"
sketch9.AttachmentOffset = App.Placement(V(0, 0, -21.75), App.Rotation())
sketch9.addGeometry([
    Part.LineSegment(V(14.5, 3.8, 0), V(14.5, 1.5, 0)),  # 0
    Part.LineSegment(V(14.5, 1.5, 0), V(12, 1.5, 0)),  # 1
    Part.LineSegment(V(12, 1.5, 0), V(12, 3.8, 0)),  # 2
    Part.LineSegment(V(12, 3.8, 0), V(14.5, 3.8, 0)),  # 3
    Part.LineSegment(V(10.8, 3.8, 0), V(10.8, 1.5, 0)),  # 4
    Part.LineSegment(V(10.8, 1.5, 0), V(8.2, 1.5, 0)),  # 5
    Part.LineSegment(V(8.2, 1.5, 0), V(8.2, 3.8, 0)),  # 6
    Part.LineSegment(V(8.2, 3.8, 0), V(10.8, 3.8, 0)),  # 7
    Part.LineSegment(V(6.2, 3.8, 0), V(6.2, 1.5, 0)),  # 8
    Part.LineSegment(V(6.2, 1.5, 0), V(3.8, 1.5, 0)),  # 9
    Part.LineSegment(V(3.8, 1.5, 0), V(3.8, 3.8, 0)),  # 10
    Part.LineSegment(V(3.8, 3.8, 0), V(6.2, 3.8, 0)),  # 11
    Part.LineSegment(V(2.5, 3.8, 0), V(2.5, 1.5, 0)),  # 12
    Part.LineSegment(V(2.5, 1.5, 0), V(0, 1.5, 0)),  # 13
    Part.LineSegment(V(0, 1.5, 0), V(0, 3.8, 0)),  # 14
    Part.LineSegment(V(0, 3.8, 0), V(2.5, 3.8, 0)),  # 15
], False)
sketch9.addConstraint([
    Sketcher.Constraint("Coincident", 0, 2, 1, 1),
    Sketcher.Constraint("Coincident", 1, 2, 2, 1),
    Sketcher.Constraint("Coincident", 2, 2, 3, 1),
    Sketcher.Constraint("Coincident", 3, 2, 0, 1),
    Sketcher.Constraint("Coincident", 4, 2, 5, 1),
    Sketcher.Constraint("Coincident", 5, 2, 6, 1),
    Sketcher.Constraint("Coincident", 6, 2, 7, 1),
    Sketcher.Constraint("Coincident", 7, 2, 4, 1),
    Sketcher.Constraint("Coincident", 8, 2, 9, 1),
    Sketcher.Constraint("Coincident", 9, 2, 10, 1),
    Sketcher.Constraint("Coincident", 10, 2, 11, 1),
    Sketcher.Constraint("Coincident", 11, 2, 8, 1),
    Sketcher.Constraint("Coincident", 12, 2, 13, 1),
    Sketcher.Constraint("Coincident", 13, 2, 14, 1),
    Sketcher.Constraint("Coincident", 14, 2, 15, 1),
    Sketcher.Constraint("Coincident", 15, 2, 12, 1),
    Sketcher.Constraint("Vertical", 0),
    Sketcher.Constraint("Horizontal", 1),
    Sketcher.Constraint("Vertical", 2),
    Sketcher.Constraint("Horizontal", 3),
    Sketcher.Constraint("Vertical", 4),
    Sketcher.Constraint("Horizontal", 5),
    Sketcher.Constraint("Vertical", 6),
    Sketcher.Constraint("Horizontal", 7),
    Sketcher.Constraint("Vertical", 8),
    Sketcher.Constraint("Horizontal", 9),
    Sketcher.Constraint("Vertical", 10),
    Sketcher.Constraint("Horizontal", 11),
    Sketcher.Constraint("Vertical", 12),
    Sketcher.Constraint("Horizontal", 13),
    Sketcher.Constraint("Vertical", 14),
    Sketcher.Constraint("Horizontal", 15),
    Sketcher.Constraint("PointOnObject", 13, 2, -2),
    Sketcher.Constraint("Horizontal", 1, 2, 4, 2),
    Sketcher.Constraint("Horizontal", 3, 2, 6, 2),
    Sketcher.Constraint("Horizontal", 5, 2, 8, 2),
    Sketcher.Constraint("Horizontal", 7, 2, 10, 2),
    Sketcher.Constraint("Horizontal", 9, 2, 12, 2),
    Sketcher.Constraint("Horizontal", 11, 2, 14, 2),
    Sketcher.Constraint("Equal", 3, 5),
    Sketcher.Constraint("Equal", 7, 9),
    Sketcher.Constraint("Equal", 11, 13),
    Sketcher.Constraint("DistanceX", 1, 2, 1, 1, 2.5),
    Sketcher.Constraint("DistanceY", 0, 2, 0, 1, 2.3),
    Sketcher.Constraint("DistanceX", -1, 1, 1, 2, 12.0),
    Sketcher.Constraint("DistanceX", 8, 2, 5, 2, 2.0),
    Sketcher.Constraint("DistanceY", -1, 1, 0, 2, 1.5),
    Sketcher.Constraint("DistanceX", -1, 1, 4, 2, 10.75),
])
pocket2 = doc.addObject("PartDesign::Pocket", "Pocket001")
body.addObject(pocket2)
pocket2.Profile = sketch9
pocket2.Length = 0.2
pocket2.Reversed = True

doc.recompute()
